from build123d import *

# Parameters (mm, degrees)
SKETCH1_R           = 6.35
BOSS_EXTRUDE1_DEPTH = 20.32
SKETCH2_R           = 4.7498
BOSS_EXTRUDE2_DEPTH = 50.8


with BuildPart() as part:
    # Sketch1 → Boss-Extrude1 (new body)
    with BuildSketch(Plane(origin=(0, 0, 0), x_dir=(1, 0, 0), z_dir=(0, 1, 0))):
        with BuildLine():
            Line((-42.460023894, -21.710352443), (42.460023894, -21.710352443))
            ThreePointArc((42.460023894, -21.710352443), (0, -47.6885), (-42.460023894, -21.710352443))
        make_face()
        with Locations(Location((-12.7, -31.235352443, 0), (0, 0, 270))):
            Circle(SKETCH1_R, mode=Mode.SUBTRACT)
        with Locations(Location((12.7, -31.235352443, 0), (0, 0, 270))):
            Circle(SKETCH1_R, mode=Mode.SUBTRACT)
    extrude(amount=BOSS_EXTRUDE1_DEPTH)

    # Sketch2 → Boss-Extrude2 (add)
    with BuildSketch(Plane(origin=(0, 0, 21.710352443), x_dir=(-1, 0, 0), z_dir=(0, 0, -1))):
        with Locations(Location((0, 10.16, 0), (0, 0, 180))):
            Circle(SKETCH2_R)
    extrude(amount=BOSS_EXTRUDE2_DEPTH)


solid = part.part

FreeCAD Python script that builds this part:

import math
import FreeCAD as App
import Part
import Sketcher
from FreeCAD import Vector
Q = App.Units.Quantity

doc = App.newDocument("Part")
body = doc.addObject("PartDesign::Body", "Body")

sketch1 = body.newObject("Sketcher::SketchObject", "Sketch")
sketch1.AttachmentSupport = (doc.getObject("XZ_Plane"), [""])
sketch1.MapMode = "FlatFace"
sketch1.addGeometry(Part.LineSegment(Vector(42, 22, 0), Vector(-42, 22, 0)), False)
sketch1.addGeometry(Part.ArcOfCircle(Part.Circle(Vector(0, 0, 0), Vector(0, 0, 1), 48), math.radians(27), math.radians(153)), False)
sketch1.addGeometry(Part.Circle(Vector(13, 31, 0), Vector(0, 0, 1), 6), False)
sketch1.addGeometry(Part.Circle(Vector(-13, 31, 0), Vector(0, 0, 1), 6), False)
sketch1.addConstraint(Sketcher.Constraint("Coincident", 0, 1, 1, 1))
sketch1.addConstraint(Sketcher.Constraint("Coincident", 1, 2, 0, 2))
sketch1.addConstraint(Sketcher.Constraint("Horizontal", 0))
sketch1.addConstraint(Sketcher.Constraint("Coincident", 1, 3, -1, 1))
sketch1.addConstraint(Sketcher.Constraint("Equal", 2, 3))
sketch1.addConstraint(Sketcher.Constraint("Symmetric", 2, 3, 3, 3, -2))
sketch1.addConstraint(Sketcher.Constraint("Diameter", 2, Q("0.5 in")))
sketch1.addConstraint(Sketcher.Constraint("DistanceX", 3, 3, 2, 3, Q("1 in")))
sketch1.addConstraint(Sketcher.Constraint("Radius", 1, Q("1.8775 in")))
sketch1.addConstraint(Sketcher.Constraint("DistanceY", 0, 1, 2, 3, Q("0.375 in")))
sketch1.addConstraint(Sketcher.Constraint("DistanceX", 0, 2, 0, 1, 84.920048))
pad1 = body.newObject("PartDesign::Pad", "Pad")
pad1.Profile = sketch1
pad1.Length = Q("0.8 in")
pad1.Reversed = True

sketch2 = body.newObject("Sketcher::SketchObject", "Sketch001")
sketch2.AttachmentSupport = (doc.getObject("XY_Plane"), [""])
sketch2.MapMode = "FlatFace"
sketch2.AttachmentOffset = App.Placement(Vector(0, 0, 21.710352), App.Rotation())
sketch2.addGeometry(Part.Circle(Vector(0, 10.2, 0), Vector(0, 0, 1), 4.7), False)
sketch2.addConstraint(Sketcher.Constraint("PointOnObject", 0, 3, -2))
sketch2.addConstraint(Sketcher.Constraint("Diameter", 0, Q("0.374 in")))
sketch2.addConstraint(Sketcher.Constraint("DistanceY", -1, 1, 0, 3, Q("0.4 in")))
pad2 = body.newObject("PartDesign::Pad", "Pad001")
pad2.Profile = sketch2
pad2.Length = Q("2 in")
pad2.Reversed = True

doc.recompute()
